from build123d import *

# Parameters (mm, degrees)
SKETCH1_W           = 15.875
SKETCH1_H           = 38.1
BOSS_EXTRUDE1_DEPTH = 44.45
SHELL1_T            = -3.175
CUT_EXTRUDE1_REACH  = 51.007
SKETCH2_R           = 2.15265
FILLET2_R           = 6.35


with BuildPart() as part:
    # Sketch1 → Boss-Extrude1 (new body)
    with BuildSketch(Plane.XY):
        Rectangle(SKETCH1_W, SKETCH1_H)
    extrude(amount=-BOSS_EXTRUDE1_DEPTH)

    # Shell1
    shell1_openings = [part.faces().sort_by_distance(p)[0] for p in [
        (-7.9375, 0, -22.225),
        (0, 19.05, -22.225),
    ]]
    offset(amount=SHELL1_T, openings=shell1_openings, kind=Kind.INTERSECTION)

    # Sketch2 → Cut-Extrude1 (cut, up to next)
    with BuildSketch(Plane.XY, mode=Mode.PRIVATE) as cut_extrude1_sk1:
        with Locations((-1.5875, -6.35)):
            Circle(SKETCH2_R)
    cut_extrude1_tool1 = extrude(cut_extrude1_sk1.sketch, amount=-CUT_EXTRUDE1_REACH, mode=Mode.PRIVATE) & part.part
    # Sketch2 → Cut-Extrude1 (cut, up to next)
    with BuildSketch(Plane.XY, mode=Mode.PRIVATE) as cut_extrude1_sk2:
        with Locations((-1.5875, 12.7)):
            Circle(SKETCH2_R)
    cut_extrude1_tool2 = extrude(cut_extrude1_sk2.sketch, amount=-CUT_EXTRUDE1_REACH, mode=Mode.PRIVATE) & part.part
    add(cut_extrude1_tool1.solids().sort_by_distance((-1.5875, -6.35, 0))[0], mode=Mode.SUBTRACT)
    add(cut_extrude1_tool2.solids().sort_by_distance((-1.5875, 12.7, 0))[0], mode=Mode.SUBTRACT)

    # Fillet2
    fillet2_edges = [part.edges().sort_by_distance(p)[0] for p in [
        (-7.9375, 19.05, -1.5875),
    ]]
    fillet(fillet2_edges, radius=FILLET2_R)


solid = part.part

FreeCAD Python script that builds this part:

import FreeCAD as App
import Part
import Sketcher

V = App.Vector
Q = App.Units.Quantity


def edges_at(feature, points):
    """Names of the edges that pass closest to the given points."""
    edges = feature.Shape.Edges
    near = lambda p: min(range(len(edges)), key=lambda i: edges[i].distToShape(Part.Vertex(*p))[0])
    return sorted({f"Edge{near(p) + 1}" for p in points})


def faces_at(feature, points):
    """Names of the faces that lie closest to the given points."""
    faces = feature.Shape.Faces
    near = lambda p: min(range(len(faces)), key=lambda i: faces[i].distToShape(Part.Vertex(*p))[0])
    return sorted({f"Face{near(p) + 1}" for p in points})

doc = App.newDocument("Part")
body = doc.addObject("PartDesign::Body", "Body")

# Sketch on XY plane
sketch1 = body.newObject("Sketcher::SketchObject", "Sketch")
sketch1.AttachmentSupport = (doc.getObject("XY_Plane"), [""])
sketch1.MapMode = "FlatFace"
sketch1.addGeometry([
    Part.LineSegment(V(-8, 19, 0), V(-8, -19, 0)),
    Part.LineSegment(V(-8, -19, 0), V(8, -19, 0)),
    Part.LineSegment(V(8, -19, 0), V(8, 19, 0)),
    Part.LineSegment(V(8, 19, 0), V(-8, 19, 0)),
], False)
sketch1.addConstraint([
    Sketcher.Constraint("Coincident", 0, 2, 1, 1),
    Sketcher.Constraint("Coincident", 1, 2, 2, 1),
    Sketcher.Constraint("Coincident", 2, 2, 3, 1),
    Sketcher.Constraint("Coincident", 3, 2, 0, 1),
    Sketcher.Constraint("Vertical", 0),
    Sketcher.Constraint("Horizontal", 1),
    Sketcher.Constraint("Vertical", 2),
    Sketcher.Constraint("Horizontal", 3),
    Sketcher.Constraint("Symmetric", 0, 2, 2, 2, -1, 1),
    Sketcher.Constraint("DistanceY", 0, 2, 0, 1, Q("1.5 in")),
    Sketcher.Constraint("DistanceX", 1, 1, 1, 2, Q("0.625 in")),
])
pad1 = body.newObject("PartDesign::Pad", "Pad")
pad1.Profile = sketch1
pad1.Length = Q("1.75 in")
pad1.Reversed = True
doc.recompute()

thickness = body.newObject("PartDesign::Thickness", "Thickness")
thickness.Base = (pad1, faces_at(pad1, [(-7.938, 0, -22.225), (0, 19.05, -22.225)]))
thickness.Value = Q("0.125 in")
thickness.Reversed = True
thickness.Join = "Intersection"

# Sketch on XY plane
sketch2 = body.newObject("Sketcher::SketchObject", "Sketch001")
sketch2.AttachmentSupport = (doc.getObject("XY_Plane"), [""])
sketch2.MapMode = "FlatFace"
sketch2.addGeometry(Part.Circle(V(-1.6, -6.3, 0), V(0, 0, 1), 2.2), False)
sketch2.addConstraint([
    Sketcher.Constraint("Diameter", 0, Q("0.1695 in")),
    Sketcher.Constraint("DistanceY", 0, 3, -1, 1, Q("0.25 in")),
    Sketcher.Constraint("DistanceX", 0, 3, -1, 1, Q("0.0625 in")),
])
pocket1 = body.newObject("PartDesign::Pocket", "Pocket")
pocket1.Profile = sketch2
pocket1.Type = "UpToFirst"

# Sketch on XY plane
sketch3 = body.newObject("Sketcher::SketchObject", "Sketch002")
sketch3.AttachmentSupport = (doc.getObject("XY_Plane"), [""])
sketch3.MapMode = "FlatFace"
sketch3.addGeometry(Part.Circle(V(-1.6, 12.7, 0), V(0, 0, 1), 2.2), False)
sketch3.addConstraint([
    Sketcher.Constraint("Diameter", 0, Q("0.1695 in")),
    Sketcher.Constraint("DistanceY", -1, 1, 0, 3, Q("0.5 in")),
    Sketcher.Constraint("DistanceX", 0, 3, -1, 1, Q("0.0625 in")),
])
pocket2 = body.newObject("PartDesign::Pocket", "Pocket001")
pocket2.Profile = sketch3
pocket2.Type = "UpToFirst"
doc.recompute()

fillet = body.newObject("PartDesign::Fillet", "Fillet")
fillet.Base = (pocket2, edges_at(pocket2, [(-7.938, 19.05, -1.587)]))
fillet.Radius = Q("0.25 in")

doc.recompute()
